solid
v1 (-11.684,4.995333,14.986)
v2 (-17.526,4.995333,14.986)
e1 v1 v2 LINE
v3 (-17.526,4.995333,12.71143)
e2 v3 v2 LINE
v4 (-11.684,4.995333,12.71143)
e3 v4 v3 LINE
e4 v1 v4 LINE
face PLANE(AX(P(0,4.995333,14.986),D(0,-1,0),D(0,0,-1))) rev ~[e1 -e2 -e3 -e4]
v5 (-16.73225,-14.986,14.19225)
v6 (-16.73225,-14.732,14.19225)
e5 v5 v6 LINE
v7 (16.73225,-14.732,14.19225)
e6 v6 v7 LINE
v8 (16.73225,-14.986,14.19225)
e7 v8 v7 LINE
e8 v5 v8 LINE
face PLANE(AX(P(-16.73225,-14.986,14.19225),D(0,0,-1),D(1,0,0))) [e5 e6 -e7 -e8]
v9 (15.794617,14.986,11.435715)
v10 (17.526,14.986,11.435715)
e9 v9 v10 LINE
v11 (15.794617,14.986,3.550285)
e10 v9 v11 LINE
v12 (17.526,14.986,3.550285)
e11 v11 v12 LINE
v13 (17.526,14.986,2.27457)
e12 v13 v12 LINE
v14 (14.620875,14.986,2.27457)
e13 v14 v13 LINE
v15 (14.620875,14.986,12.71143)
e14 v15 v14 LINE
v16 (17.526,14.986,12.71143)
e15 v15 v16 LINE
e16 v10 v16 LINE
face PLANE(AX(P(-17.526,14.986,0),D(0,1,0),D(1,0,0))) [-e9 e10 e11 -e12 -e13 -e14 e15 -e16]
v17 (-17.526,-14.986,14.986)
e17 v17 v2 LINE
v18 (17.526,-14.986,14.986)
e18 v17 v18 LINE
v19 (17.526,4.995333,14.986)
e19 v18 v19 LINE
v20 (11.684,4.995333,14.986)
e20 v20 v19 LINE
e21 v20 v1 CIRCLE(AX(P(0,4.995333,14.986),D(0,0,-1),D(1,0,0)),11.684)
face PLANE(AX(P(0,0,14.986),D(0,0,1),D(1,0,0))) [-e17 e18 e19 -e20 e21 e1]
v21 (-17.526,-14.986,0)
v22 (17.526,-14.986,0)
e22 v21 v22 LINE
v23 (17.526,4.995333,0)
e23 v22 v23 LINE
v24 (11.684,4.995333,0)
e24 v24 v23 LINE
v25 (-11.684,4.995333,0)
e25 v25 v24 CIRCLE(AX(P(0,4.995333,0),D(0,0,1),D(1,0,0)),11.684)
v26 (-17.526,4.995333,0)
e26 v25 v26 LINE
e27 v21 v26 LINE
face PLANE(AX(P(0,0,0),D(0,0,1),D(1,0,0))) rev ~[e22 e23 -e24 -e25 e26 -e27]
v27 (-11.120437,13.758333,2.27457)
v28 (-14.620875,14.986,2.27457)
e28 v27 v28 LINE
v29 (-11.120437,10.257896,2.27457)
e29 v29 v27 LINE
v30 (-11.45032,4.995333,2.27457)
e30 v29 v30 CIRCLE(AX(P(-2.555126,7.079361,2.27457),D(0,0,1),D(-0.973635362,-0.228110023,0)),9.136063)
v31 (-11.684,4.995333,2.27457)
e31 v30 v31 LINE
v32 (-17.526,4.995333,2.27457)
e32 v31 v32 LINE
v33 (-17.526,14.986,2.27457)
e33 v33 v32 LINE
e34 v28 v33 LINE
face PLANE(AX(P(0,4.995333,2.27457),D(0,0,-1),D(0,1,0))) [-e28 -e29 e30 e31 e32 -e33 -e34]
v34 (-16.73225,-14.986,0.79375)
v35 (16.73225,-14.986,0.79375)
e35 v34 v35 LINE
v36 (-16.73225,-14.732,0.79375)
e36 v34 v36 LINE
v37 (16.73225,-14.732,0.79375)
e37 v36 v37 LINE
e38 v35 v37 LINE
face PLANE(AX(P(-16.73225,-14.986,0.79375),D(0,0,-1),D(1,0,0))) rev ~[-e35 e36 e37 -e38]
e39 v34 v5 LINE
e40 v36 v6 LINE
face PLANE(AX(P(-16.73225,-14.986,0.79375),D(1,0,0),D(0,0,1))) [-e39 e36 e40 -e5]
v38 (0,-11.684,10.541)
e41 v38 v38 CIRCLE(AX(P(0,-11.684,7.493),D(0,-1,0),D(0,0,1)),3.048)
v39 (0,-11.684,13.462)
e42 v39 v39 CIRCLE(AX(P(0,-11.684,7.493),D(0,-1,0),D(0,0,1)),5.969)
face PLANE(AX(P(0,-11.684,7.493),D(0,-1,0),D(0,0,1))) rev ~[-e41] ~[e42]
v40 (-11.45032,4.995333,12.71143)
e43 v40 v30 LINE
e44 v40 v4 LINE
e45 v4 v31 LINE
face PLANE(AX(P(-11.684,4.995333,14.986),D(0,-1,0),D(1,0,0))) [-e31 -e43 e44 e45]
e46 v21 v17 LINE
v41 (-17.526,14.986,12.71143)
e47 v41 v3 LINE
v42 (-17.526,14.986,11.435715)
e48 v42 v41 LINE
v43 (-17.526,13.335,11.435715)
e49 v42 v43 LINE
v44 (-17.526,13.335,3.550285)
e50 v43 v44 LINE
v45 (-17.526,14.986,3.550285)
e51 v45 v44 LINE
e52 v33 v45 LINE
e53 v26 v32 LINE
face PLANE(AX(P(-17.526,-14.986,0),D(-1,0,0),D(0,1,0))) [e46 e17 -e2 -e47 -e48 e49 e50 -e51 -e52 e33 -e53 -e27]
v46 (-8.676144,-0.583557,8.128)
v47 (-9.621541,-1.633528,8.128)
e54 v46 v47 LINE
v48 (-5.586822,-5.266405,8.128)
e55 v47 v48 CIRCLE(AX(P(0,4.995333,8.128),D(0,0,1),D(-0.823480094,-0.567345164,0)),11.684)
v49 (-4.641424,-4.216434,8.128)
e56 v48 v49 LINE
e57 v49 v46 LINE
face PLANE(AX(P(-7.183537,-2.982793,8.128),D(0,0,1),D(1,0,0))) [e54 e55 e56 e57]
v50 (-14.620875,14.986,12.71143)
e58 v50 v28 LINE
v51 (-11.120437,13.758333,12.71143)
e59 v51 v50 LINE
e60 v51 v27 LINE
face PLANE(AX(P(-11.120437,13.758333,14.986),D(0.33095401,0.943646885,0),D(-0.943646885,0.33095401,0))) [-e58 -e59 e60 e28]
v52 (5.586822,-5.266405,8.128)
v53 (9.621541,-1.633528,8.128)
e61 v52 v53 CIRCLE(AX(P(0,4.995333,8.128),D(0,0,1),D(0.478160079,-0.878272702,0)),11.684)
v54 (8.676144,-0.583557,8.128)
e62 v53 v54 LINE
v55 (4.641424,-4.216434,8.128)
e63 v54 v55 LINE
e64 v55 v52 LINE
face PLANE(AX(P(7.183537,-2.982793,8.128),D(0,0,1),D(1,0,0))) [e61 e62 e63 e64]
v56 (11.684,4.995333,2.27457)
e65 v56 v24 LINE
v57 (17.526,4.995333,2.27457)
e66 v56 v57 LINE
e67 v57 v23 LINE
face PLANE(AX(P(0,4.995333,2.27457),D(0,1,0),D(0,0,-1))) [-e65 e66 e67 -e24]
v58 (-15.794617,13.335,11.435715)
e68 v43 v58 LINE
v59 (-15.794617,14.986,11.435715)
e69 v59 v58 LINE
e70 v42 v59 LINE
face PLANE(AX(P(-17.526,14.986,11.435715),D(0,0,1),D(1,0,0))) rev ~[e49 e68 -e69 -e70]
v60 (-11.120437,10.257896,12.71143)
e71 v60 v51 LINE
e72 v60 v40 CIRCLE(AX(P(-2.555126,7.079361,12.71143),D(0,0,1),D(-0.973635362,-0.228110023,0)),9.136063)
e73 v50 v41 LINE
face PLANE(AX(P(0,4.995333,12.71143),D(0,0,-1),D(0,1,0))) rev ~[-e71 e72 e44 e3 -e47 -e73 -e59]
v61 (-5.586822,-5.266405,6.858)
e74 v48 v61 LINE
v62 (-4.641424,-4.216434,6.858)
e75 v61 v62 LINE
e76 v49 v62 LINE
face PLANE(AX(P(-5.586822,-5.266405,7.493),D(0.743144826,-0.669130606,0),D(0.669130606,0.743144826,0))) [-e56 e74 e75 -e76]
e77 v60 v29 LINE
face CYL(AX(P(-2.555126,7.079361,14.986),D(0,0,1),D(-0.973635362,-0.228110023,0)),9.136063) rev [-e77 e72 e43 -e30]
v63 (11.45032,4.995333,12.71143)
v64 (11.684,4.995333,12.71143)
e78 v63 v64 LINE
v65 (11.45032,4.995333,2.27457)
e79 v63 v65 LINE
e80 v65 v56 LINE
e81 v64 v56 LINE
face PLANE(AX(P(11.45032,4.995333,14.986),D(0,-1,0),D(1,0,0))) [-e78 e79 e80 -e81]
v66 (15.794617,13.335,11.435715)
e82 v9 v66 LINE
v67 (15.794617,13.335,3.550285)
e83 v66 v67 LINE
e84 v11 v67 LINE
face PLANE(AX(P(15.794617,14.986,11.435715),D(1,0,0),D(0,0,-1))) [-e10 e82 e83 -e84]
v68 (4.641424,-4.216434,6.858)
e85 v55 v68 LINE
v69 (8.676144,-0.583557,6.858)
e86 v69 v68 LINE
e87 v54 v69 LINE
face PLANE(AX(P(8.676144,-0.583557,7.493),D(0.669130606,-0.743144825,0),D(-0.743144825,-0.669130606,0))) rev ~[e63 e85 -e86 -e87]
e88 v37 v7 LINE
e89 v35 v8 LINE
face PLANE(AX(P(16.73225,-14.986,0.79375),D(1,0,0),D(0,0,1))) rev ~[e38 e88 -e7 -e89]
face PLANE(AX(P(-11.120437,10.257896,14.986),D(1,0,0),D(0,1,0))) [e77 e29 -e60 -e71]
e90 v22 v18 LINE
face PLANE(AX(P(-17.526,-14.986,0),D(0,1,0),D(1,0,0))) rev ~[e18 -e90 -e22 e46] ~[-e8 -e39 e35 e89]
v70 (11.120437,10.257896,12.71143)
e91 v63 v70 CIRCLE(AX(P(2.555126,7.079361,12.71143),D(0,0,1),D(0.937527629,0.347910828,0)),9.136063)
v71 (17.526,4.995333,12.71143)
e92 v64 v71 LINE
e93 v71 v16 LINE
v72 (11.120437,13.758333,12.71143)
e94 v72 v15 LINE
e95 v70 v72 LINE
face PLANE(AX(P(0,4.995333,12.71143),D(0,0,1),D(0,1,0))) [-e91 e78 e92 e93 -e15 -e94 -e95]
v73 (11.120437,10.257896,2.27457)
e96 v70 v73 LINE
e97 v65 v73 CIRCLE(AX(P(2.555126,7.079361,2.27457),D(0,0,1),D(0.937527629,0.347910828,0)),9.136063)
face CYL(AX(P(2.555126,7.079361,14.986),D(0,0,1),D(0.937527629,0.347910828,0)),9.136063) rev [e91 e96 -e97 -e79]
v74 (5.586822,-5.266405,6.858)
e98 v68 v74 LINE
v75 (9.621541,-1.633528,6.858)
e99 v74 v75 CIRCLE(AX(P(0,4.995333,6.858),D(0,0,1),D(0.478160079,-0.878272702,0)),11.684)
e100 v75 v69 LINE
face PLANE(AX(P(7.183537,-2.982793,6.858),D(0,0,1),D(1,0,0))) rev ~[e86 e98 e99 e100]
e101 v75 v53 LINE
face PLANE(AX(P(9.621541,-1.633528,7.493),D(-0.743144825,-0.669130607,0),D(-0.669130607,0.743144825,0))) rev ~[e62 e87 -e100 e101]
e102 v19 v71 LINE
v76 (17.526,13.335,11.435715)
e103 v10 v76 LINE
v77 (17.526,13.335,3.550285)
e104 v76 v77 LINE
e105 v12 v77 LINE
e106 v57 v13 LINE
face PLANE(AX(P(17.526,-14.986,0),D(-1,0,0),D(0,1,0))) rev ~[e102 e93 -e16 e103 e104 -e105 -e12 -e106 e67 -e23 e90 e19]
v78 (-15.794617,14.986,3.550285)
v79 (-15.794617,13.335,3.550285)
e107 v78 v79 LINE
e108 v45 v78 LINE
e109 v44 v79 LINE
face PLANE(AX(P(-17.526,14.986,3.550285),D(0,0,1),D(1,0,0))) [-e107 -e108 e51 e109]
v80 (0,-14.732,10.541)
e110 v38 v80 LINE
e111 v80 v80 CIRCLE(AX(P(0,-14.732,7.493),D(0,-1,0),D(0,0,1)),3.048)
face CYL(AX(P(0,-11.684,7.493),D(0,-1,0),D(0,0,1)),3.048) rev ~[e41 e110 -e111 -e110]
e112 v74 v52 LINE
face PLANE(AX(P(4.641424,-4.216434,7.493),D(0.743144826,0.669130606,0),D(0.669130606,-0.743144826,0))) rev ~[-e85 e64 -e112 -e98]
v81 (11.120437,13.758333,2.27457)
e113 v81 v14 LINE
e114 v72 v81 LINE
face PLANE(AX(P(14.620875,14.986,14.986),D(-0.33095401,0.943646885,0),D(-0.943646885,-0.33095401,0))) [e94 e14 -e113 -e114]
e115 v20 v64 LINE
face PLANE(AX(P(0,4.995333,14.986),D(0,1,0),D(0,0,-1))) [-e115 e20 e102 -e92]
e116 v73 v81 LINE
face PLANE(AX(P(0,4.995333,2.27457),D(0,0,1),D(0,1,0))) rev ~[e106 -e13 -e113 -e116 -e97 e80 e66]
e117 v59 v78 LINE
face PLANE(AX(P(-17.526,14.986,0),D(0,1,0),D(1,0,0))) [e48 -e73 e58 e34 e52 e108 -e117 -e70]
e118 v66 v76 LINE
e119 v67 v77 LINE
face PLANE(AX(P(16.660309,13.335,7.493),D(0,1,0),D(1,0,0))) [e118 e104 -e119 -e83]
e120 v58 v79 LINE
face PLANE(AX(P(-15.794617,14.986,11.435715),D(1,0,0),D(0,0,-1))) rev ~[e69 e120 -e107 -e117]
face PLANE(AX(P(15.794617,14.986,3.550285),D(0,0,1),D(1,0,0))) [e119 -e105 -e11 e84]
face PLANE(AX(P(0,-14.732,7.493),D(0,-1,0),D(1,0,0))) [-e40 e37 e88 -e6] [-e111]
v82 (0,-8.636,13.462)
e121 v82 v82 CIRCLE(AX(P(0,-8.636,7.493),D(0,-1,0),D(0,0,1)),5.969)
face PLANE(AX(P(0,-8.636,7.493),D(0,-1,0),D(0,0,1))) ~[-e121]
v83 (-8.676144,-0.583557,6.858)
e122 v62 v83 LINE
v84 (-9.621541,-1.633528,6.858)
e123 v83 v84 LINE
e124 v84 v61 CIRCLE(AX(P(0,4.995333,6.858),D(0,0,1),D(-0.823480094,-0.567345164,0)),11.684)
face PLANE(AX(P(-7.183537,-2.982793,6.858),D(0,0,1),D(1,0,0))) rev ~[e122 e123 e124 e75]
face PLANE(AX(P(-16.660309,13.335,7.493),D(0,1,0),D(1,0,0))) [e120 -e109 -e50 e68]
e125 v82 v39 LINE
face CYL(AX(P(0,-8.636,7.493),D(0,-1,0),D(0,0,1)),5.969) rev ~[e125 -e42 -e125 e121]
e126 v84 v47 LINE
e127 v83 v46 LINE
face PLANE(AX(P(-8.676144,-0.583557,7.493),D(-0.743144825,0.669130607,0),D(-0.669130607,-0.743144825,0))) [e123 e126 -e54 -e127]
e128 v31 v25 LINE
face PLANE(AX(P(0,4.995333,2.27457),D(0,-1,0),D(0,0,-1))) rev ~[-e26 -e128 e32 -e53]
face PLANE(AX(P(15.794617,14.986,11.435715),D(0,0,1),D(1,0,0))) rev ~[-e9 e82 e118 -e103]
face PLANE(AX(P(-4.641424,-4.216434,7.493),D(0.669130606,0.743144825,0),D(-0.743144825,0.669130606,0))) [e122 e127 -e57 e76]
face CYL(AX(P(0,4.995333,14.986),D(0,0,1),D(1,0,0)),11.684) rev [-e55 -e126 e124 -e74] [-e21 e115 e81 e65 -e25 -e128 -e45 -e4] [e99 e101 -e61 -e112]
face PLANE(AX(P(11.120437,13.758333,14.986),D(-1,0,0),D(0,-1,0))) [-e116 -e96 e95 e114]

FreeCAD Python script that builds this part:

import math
import FreeCAD as App
import Part
import Sketcher
Q = App.Units.Quantity


def add_polygon(sketch, points):
    """Adds a closed chain of lines whose ends are joined by coincident constraints."""
    first, n = sketch.GeometryCount, len(points)
    for a, b in zip(points, points[1:] + points[:1]):
        sketch.addGeometry(Part.LineSegment(App.Vector(*a, 0), App.Vector(*b, 0)), False)
    for i in range(n):
        sketch.addConstraint(Sketcher.Constraint("Coincident", first + i, 2, first + (i + 1) % n, 1))

doc = App.newDocument("Part")
body = doc.addObject("PartDesign::Body", "Body")

sketch1 = body.newObject("Sketcher::SketchObject", "Sketch")
sketch1.AttachmentSupport = (doc.getObject("XY_Plane"), [""])
sketch1.MapMode = "FlatFace"
add_polygon(sketch1, [(-17.526, 14.986), (-17.526, -14.986), (17.526, -14.986), (17.526, 14.986)])
sketch1.addConstraint([
    Sketcher.Constraint("Vertical", 0),
    Sketcher.Constraint("Horizontal", 1),
    Sketcher.Constraint("Vertical", 2),
    Sketcher.Constraint("Horizontal", 3),
    Sketcher.Constraint("Symmetric", 0, 2, 2, 2, -1, 1),
    Sketcher.Constraint("DistanceX", 1, 1, 1, 2, Q("1.38 in")),
    Sketcher.Constraint("DistanceY", 0, 2, 0, 1, Q("1.18 in")),
])
pad1 = body.newObject("PartDesign::Pad", "Pad")
pad1.Profile = sketch1
pad1.Length = Q("0.59 in")

sketch2 = body.newObject("Sketcher::SketchObject", "Sketch001")
sketch2.AttachmentSupport = (doc.getObject("XY_Plane"), [""])
sketch2.MapMode = "FlatFace"
sketch2.AttachmentOffset = App.Placement(App.Vector(0, 0, 0.59 * 25.4), App.Rotation())
sketch2.addGeometry([
    Part.LineSegment(App.Vector(-11.45032, 4.995333, 0), App.Vector(-11.684, 4.995333, 0)),
    Part.ArcOfCircle(Part.Circle(App.Vector(0, 4.995333, 0), App.Vector(0, 0, 1), 11.684), math.radians(180), math.radians(360)),
    Part.LineSegment(App.Vector(11.684, 4.995333, 0), App.Vector(11.45032, 4.995333, 0)),
    Part.ArcOfCircle(Part.Circle(App.Vector(2.555126, 7.079361, 0), App.Vector(0, 0, 1), 9.136063), math.radians(-13.185826), math.radians(20.359585)),
    Part.LineSegment(App.Vector(11.120437, 10.257896, 0), App.Vector(11.120437, 13.758333, 0)),
    Part.LineSegment(App.Vector(11.120437, 13.758333, 0), App.Vector(14.620875, 14.986, 0)),
    Part.LineSegment(App.Vector(14.620875, 14.986, 0), App.Vector(-14.620875, 14.986, 0)),
    Part.LineSegment(App.Vector(-14.620875, 14.986, 0), App.Vector(-11.120437, 13.758333, 0)),
    Part.LineSegment(App.Vector(-11.120437, 13.758333, 0), App.Vector(-11.120437, 10.257896, 0)),
    Part.ArcOfCircle(Part.Circle(App.Vector(-2.555126, 7.079361, 0), App.Vector(0, 0, 1), 9.136063), math.radians(159.640415), math.radians(193.185826)),
], False)
sketch2.addConstraint([
    Sketcher.Constraint("Coincident", 0, 2, 1, 1),
    Sketcher.Constraint("Coincident", 1, 2, 2, 1),
    Sketcher.Constraint("Coincident", 2, 2, 3, 1),
    Sketcher.Constraint("Coincident", 3, 2, 4, 1),
    Sketcher.Constraint("Coincident", 4, 2, 5, 1),
    Sketcher.Constraint("Coincident", 5, 2, 6, 1),
    Sketcher.Constraint("Coincident", 6, 2, 7, 1),
    Sketcher.Constraint("Coincident", 7, 2, 8, 1),
    Sketcher.Constraint("Coincident", 8, 2, 9, 1),
    Sketcher.Constraint("Coincident", 9, 2, 0, 1),
    Sketcher.Constraint("Horizontal", 0),
    Sketcher.Constraint("Horizontal", 2),
    Sketcher.Constraint("Vertical", 4),
    Sketcher.Constraint("Horizontal", 6),
    Sketcher.Constraint("Vertical", 8),
    Sketcher.Constraint("Equal", 3, 9),
    Sketcher.Constraint("Symmetric", 3, 3, 9, 3, -2),
    Sketcher.Constraint("Symmetric", 0, 2, 1, 2, -2),
    Sketcher.Constraint("Symmetric", 4, 2, 7, 2, -2),
    Sketcher.Constraint("Horizontal", 1, 3, 0, 2),
    Sketcher.Constraint("Equal", 5, 7),
    Sketcher.Constraint("Radius", 1, Q("0.46 in")),
    Sketcher.Constraint("DistanceY", -1, 1, 5, 2, Q("0.59 in")),
    Sketcher.Constraint("DistanceX", 0, 2, 0, 1, Q("0.0092 in")),
    Sketcher.Constraint("DistanceY", 2, 2, 4, 2, Q("0.345 in")),
    Sketcher.Constraint("Radius", 3, 9.136063),
    Sketcher.Constraint("DistanceX", 6, 2, 6, 1, 29.24175),
    Sketcher.Constraint("DistanceX", 6, 2, 3, 3, 17.176001),
    Sketcher.Constraint("Distance", 5, 3.709478),
    Sketcher.Constraint("DistanceY", 4, 1, 4, 2, 3.500438),
])
pocket1 = body.newObject("PartDesign::Pocket", "Pocket")
pocket1.Profile = sketch2
pocket1.Type = "ThroughAll"

sketch3 = body.newObject("Sketcher::SketchObject", "Sketch002")
sketch3.AttachmentSupport = (doc.getObject("YZ_Plane"), [""])
sketch3.MapMode = "FlatFace"
add_polygon(sketch3, [(14.986, 14.986), (4.995333, 14.986), (4.995333, 12.71143), (14.986, 12.71143)])
add_polygon(sketch3, [(14.986, 2.27457), (4.995333, 2.27457), (4.995333, 0), (14.986, 0)])
sketch3.addConstraint([
    Sketcher.Constraint("Horizontal", 0),
    Sketcher.Constraint("Vertical", 1),
    Sketcher.Constraint("Horizontal", 2),
    Sketcher.Constraint("Vertical", 3),
    Sketcher.Constraint("Horizontal", 4),
    Sketcher.Constraint("Vertical", 5),
    Sketcher.Constraint("Horizontal", 6),
    Sketcher.Constraint("Vertical", 7),
    Sketcher.Constraint("PointOnObject", 5, 2, -1),
    Sketcher.Constraint("Vertical", 1, 2, 4, 2),
    Sketcher.Constraint("Vertical", 3, 2, 6, 2),
    Sketcher.Constraint("Equal", 3, 5),
    Sketcher.Constraint("DistanceY", -1, 1, 0, 2, Q("0.59 in")),
    Sketcher.Constraint("DistanceX", -1, 1, 2, 2, Q("0.59 in")),
    Sketcher.Constraint("DistanceY", 4, 2, 1, 2, Q("0.4109 in")),
    Sketcher.Constraint("DistanceX", 0, 2, 0, 1, 9.990667),
])
pocket2 = body.newObject("PartDesign::Pocket", "Pocket001")
pocket2.Profile = sketch3
pocket2.Type = "ThroughAll"
pocket2.Midplane = True

sketch4 = body.newObject("Sketcher::SketchObject", "Sketch003")
sketch4.AttachmentSupport = (doc.getObject("XZ_Plane"), [""])
sketch4.MapMode = "FlatFace"
sketch4.AttachmentOffset = App.Placement(App.Vector(0, 0, 0.59 * 25.4), App.Rotation())
add_polygon(sketch4, [(-16.73225, 14.19225), (-16.73225, 0.79375), (16.73225, 0.79375), (16.73225, 14.19225)])
sketch4.addConstraint([
    Sketcher.Constraint("Vertical", 0),
    Sketcher.Constraint("Horizontal", 1),
    Sketcher.Constraint("Vertical", 2),
    Sketcher.Constraint("Horizontal", 3),
    Sketcher.Constraint("DistanceX", 1, 1, 1, 2, Q("1.3175 in")),
    Sketcher.Constraint("DistanceY", 0, 2, 0, 1, Q("0.5275 in")),
    Sketcher.Constraint("DistanceY", -1, 1, 0, 2, Q("0.03125 in")),
    Sketcher.Constraint("DistanceX", 0, 2, -1, 1, 16.73225),
])
pocket3 = body.newObject("PartDesign::Pocket", "Pocket002")
pocket3.Profile = sketch4
pocket3.Length = Q("0.01 in")

sketch5 = body.newObject("Sketcher::SketchObject", "Sketch004")
sketch5.AttachmentSupport = (doc.getObject("XZ_Plane"), [""])
sketch5.MapMode = "FlatFace"
sketch5.AttachmentOffset = App.Placement(App.Vector(0, 0, -0.59 * 25.4), App.Rotation())
add_polygon(sketch5, [(-17.526, 3.550285), (-17.526, 11.435715), (-15.794617, 11.435715), (-15.794617, 3.550285)])
add_polygon(sketch5, [(15.794617, 3.550285), (15.794617, 11.435715), (17.526, 11.435715), (17.526, 3.550285)])
sketch5.addConstraint([
    Sketcher.Constraint("Vertical", 0),
    Sketcher.Constraint("Horizontal", 1),
    Sketcher.Constraint("Vertical", 2),
    Sketcher.Constraint("Horizontal", 3),
    Sketcher.Constraint("Vertical", 4),
    Sketcher.Constraint("Horizontal", 5),
    Sketcher.Constraint("Vertical", 6),
    Sketcher.Constraint("Horizontal", 7),
    Sketcher.Constraint("Symmetric", 1, 2, 4, 2, -2),
    Sketcher.Constraint("Symmetric", 3, 2, 6, 2, -2),
    Sketcher.Constraint("DistanceX", 0, 2, -1, 1, Q("0.69 in")),
    Sketcher.Constraint("DistanceY", 0, 1, 0, 2, 7.88543),
    Sketcher.Constraint("DistanceX", 1, 1, 1, 2, 1.731383),
    Sketcher.Constraint("DistanceY", -1, 1, 0, 2, 11.435715),
])
pocket4 = body.newObject("PartDesign::Pocket", "Pocket003")
pocket4.Profile = sketch5
pocket4.Length = Q("0.065 in")
pocket4.Reversed = True

sketch6 = body.newObject("Sketcher::SketchObject", "Sketch005")
sketch6.AttachmentSupport = (doc.getObject("XY_Plane"), [""])
sketch6.MapMode = "FlatFace"
sketch6.AttachmentOffset = App.Placement(App.Vector(0, 0, 0.295 * 25.4), App.Rotation())
add_polygon(sketch6, [(0, -14.732), (-3.048, -14.732), (-3.048, -11.684), (-5.969, -11.684), (-5.969, -8.636), (0, -8.636)])
sketch6.addConstraint([
    Sketcher.Constraint("Horizontal", 0),
    Sketcher.Constraint("Vertical", 1),
    Sketcher.Constraint("Horizontal", 2),
    Sketcher.Constraint("Vertical", 3),
    Sketcher.Constraint("Horizontal", 4),
    Sketcher.Constraint("Vertical", 5),
    Sketcher.Constraint("PointOnObject", 4, 2, -2),
    Sketcher.Constraint("Equal", 0, 1),
    Sketcher.Constraint("Equal", 1, 3),
    Sketcher.Constraint("DistanceX", 0, 2, 0, 1, Q("0.12 in")),
    Sketcher.Constraint("DistanceX", 2, 2, 2, 1, Q("0.115 in")),
    Sketcher.Constraint("DistanceY", 0, 2, -1, 1, Q("0.58 in")),
])
groove = body.newObject("PartDesign::Groove", "Groove")
groove.Profile = sketch6
groove.ReferenceAxis = (sketch6, ["V_Axis"])
groove.Angle = 360

sketch7 = body.newObject("Sketcher::SketchObject", "Sketch006")
sketch7.AttachmentSupport = (doc.getObject("XY_Plane"), [""])
sketch7.MapMode = "FlatFace"
sketch7.AttachmentOffset = App.Placement(App.Vector(0, 0, 0.295 * 25.4), App.Rotation())
sketch7.addGeometry([
    Part.LineSegment(App.Vector(-8.676144, -0.583557, 0), App.Vector(-4.641424, -4.216434, 0)),
    Part.LineSegment(App.Vector(-4.641424, -4.216434, 0), App.Vector(-5.586822, -5.266405, 0)),
    Part.ArcOfCircle(Part.Circle(App.Vector(0, 4.995333, 0), App.Vector(0, 0, 1), 11.684), math.radians(-145.434697), math.radians(-118.565303)),
    Part.LineSegment(App.Vector(-9.621541, -1.633528, 0), App.Vector(-8.676144, -0.583557, 0)),
    Part.LineSegment(App.Vector(5.586822, -5.266405, 0), App.Vector(4.641424, -4.216434, 0)),
    Part.LineSegment(App.Vector(4.641424, -4.216434, 0), App.Vector(8.676144, -0.583557, 0)),
    Part.LineSegment(App.Vector(8.676144, -0.583557, 0), App.Vector(9.621541, -1.633528, 0)),
    Part.ArcOfCircle(Part.Circle(App.Vector(0, 4.995333, 0), App.Vector(0, 0, 1), 11.684), math.radians(-61.434697), math.radians(-34.565303)),
], False)
sketch7.addConstraint([
    Sketcher.Constraint("Coincident", 0, 2, 1, 1),
    Sketcher.Constraint("Coincident", 1, 2, 2, 2),
    Sketcher.Constraint("Coincident", 2, 1, 3, 1),
    Sketcher.Constraint("Coincident", 3, 2, 0, 1),
    Sketcher.Constraint("Coincident", 4, 2, 5, 1),
    Sketcher.Constraint("Coincident", 5, 2, 6, 1),
    Sketcher.Constraint("Coincident", 6, 2, 7, 2),
    Sketcher.Constraint("Coincident", 7, 1, 4, 1),
    Sketcher.Constraint("Coincident", 7, 3, 2, 3),
    Sketcher.Constraint("Equal", 2, 7),
    Sketcher.Constraint("Symmetric", 0, 2, 4, 2, -2),
    Sketcher.Constraint("Symmetric", 3, 2, 5, 2, -2),
    Sketcher.Constraint("Symmetric", 2, 1, 6, 2, -2),
    Sketcher.Constraint("Perpendicular", 0, 1),
    Sketcher.Constraint("Parallel", 1, 3),
    Sketcher.Constraint("Perpendicular", 4, 5),
    Sketcher.Constraint("Equal", 1, 3),
    Sketcher.Constraint("Radius", 2, Q("0.46 in")),
    Sketcher.Constraint("Angle", 0, Q("-42 deg")),
    Sketcher.Constraint("Distance", 0, 5.42925),
    Sketcher.Constraint("DistanceY", 1, 2, 0, 2, 1.049971),
    Sketcher.Constraint("DistanceY", -1, 1, 2, 3, 4.995333),
])
pad2 = body.newObject("PartDesign::Pad", "Pad001")
pad2.Profile = sketch7
pad2.Length = Q("0.05 in")
pad2.Midplane = True

doc.recompute()
